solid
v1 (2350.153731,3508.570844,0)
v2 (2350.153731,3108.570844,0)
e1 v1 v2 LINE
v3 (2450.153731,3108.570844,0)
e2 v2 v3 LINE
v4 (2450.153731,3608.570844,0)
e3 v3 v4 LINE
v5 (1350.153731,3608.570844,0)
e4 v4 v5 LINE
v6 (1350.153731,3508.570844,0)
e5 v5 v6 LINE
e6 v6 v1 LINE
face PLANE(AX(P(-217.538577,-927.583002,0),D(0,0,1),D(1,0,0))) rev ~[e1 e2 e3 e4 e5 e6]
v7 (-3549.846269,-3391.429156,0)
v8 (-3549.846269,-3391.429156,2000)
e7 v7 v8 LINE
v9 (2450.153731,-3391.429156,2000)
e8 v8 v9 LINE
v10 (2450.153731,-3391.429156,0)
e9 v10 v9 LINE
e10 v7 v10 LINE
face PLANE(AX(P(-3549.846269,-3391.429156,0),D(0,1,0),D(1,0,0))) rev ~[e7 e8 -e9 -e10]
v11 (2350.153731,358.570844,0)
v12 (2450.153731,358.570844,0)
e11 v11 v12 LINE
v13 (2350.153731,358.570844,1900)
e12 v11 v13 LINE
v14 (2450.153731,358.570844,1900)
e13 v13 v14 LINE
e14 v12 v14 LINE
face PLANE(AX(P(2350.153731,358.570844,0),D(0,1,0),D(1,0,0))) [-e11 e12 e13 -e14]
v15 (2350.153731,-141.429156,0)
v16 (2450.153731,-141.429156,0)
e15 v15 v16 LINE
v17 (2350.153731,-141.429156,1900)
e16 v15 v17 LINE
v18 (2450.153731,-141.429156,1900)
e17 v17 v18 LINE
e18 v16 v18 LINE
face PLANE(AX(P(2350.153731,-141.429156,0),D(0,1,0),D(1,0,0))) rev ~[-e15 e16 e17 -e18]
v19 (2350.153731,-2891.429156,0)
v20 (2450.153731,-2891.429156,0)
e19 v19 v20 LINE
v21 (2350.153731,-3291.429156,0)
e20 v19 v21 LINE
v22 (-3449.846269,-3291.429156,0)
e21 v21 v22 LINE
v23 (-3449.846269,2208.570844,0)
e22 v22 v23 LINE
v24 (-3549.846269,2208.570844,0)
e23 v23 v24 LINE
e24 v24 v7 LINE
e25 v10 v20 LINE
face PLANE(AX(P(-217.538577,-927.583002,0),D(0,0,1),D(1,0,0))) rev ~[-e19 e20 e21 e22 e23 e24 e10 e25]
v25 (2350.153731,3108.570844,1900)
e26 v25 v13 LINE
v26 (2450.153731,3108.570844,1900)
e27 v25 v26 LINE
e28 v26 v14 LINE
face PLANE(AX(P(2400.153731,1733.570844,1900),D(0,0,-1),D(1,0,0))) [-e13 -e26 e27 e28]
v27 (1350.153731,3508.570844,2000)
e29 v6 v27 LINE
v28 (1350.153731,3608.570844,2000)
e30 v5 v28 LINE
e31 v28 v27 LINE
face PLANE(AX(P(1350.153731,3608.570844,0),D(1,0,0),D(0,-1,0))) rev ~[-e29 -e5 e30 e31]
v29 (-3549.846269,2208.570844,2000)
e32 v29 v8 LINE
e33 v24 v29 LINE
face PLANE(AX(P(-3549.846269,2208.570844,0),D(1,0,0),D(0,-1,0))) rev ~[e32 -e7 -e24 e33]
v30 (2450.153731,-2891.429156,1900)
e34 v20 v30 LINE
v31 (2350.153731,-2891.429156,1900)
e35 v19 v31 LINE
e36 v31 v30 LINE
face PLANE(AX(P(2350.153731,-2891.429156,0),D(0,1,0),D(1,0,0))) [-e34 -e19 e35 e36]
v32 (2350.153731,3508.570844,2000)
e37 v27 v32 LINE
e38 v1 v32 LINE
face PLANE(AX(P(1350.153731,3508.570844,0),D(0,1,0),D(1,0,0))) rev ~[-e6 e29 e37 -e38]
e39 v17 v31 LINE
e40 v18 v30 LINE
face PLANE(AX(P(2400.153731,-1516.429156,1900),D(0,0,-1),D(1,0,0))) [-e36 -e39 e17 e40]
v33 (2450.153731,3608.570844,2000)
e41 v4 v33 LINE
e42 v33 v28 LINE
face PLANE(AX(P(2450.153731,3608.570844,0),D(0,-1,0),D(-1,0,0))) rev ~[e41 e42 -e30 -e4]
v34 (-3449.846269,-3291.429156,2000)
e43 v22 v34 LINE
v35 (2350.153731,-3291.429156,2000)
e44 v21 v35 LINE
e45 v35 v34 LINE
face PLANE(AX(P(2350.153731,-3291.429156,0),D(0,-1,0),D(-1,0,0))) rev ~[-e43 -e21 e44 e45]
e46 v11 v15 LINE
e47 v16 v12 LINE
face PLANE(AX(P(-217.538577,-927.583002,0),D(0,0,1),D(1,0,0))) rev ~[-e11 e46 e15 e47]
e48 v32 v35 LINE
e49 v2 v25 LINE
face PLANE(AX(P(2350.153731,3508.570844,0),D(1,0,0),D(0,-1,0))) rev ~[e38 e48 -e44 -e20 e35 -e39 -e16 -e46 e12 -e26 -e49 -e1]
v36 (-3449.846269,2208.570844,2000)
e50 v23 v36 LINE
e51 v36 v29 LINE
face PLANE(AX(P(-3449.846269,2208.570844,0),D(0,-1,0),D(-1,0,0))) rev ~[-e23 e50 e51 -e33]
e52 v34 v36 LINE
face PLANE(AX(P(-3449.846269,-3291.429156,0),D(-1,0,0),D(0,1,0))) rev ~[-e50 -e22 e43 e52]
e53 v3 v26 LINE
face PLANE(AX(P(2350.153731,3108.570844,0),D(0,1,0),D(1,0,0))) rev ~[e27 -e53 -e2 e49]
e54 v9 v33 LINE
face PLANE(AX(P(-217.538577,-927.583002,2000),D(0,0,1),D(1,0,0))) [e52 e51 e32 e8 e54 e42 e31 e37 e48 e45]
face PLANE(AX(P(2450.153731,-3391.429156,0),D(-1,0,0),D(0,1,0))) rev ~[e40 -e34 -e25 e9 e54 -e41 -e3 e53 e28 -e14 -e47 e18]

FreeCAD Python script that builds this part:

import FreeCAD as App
import Part
import Sketcher

V = App.Vector

doc = App.newDocument("Part")
body = doc.addObject("PartDesign::Body", "Body")

# Sketch on XY plane
sketch1 = body.newObject("Sketcher::SketchObject", "Sketch")
sketch1.AttachmentSupport = (doc.getObject("XY_Plane"), [""])
sketch1.MapMode = "FlatFace"
sketch1.addGeometry(Part.LineSegment(V(2450.153731, 3608.570844, 0), V(1350.153731, 3608.570844, 0)), False)
sketch1.addGeometry(Part.LineSegment(V(1350.153731, 3608.570844, 0), V(1350.153731, 3508.570844, 0)), False)
sketch1.addGeometry(Part.LineSegment(V(1350.153731, 3508.570844, 0), V(2350.153731, 3508.570844, 0)), False)
sketch1.addGeometry(Part.LineSegment(V(2350.153731, 3508.570844, 0), V(2350.153731, -3291.429156, 0)), False)
sketch1.addGeometry(Part.LineSegment(V(2350.153731, -3291.429156, 0), V(-3449.846269, -3291.429156, 0)), False)
sketch1.addGeometry(Part.LineSegment(V(-3449.846269, -3291.429156, 0), V(-3449.846269, 2208.570844, 0)), False)
sketch1.addGeometry(Part.LineSegment(V(-3449.846269, 2208.570844, 0), V(-3549.846269, 2208.570844, 0)), False)
sketch1.addGeometry(Part.LineSegment(V(-3549.846269, 2208.570844, 0), V(-3549.846269, -3391.429156, 0)), False)
sketch1.addGeometry(Part.LineSegment(V(-3549.846269, -3391.429156, 0), V(2450.153731, -3391.429156, 0)), False)
sketch1.addGeometry(Part.LineSegment(V(2450.153731, -3391.429156, 0), V(2450.153731, 3608.570844, 0)), False)
sketch1.addConstraint(Sketcher.Constraint("Coincident", 0, 2, 1, 1))
sketch1.addConstraint(Sketcher.Constraint("Coincident", 1, 2, 2, 1))
sketch1.addConstraint(Sketcher.Constraint("Coincident", 2, 2, 3, 1))
sketch1.addConstraint(Sketcher.Constraint("Coincident", 3, 2, 4, 1))
sketch1.addConstraint(Sketcher.Constraint("Coincident", 4, 2, 5, 1))
sketch1.addConstraint(Sketcher.Constraint("Coincident", 5, 2, 6, 1))
sketch1.addConstraint(Sketcher.Constraint("Coincident", 6, 2, 7, 1))
sketch1.addConstraint(Sketcher.Constraint("Coincident", 7, 2, 8, 1))
sketch1.addConstraint(Sketcher.Constraint("Coincident", 8, 2, 9, 1))
sketch1.addConstraint(Sketcher.Constraint("Coincident", 9, 2, 0, 1))
sketch1.addConstraint(Sketcher.Constraint("Horizontal", 0))
sketch1.addConstraint(Sketcher.Constraint("Vertical", 1))
sketch1.addConstraint(Sketcher.Constraint("Horizontal", 2))
sketch1.addConstraint(Sketcher.Constraint("Vertical", 3))
sketch1.addConstraint(Sketcher.Constraint("Horizontal", 4))
sketch1.addConstraint(Sketcher.Constraint("Vertical", 5))
sketch1.addConstraint(Sketcher.Constraint("Horizontal", 6))
sketch1.addConstraint(Sketcher.Constraint("Vertical", 7))
sketch1.addConstraint(Sketcher.Constraint("Horizontal", 8))
sketch1.addConstraint(Sketcher.Constraint("Vertical", 9))
sketch1.addConstraint(Sketcher.Constraint("Equal", 6, 1))
sketch1.addConstraint(Sketcher.Constraint("DistanceX", 0, 2, 0, 1, 1100.0))
sketch1.addConstraint(Sketcher.Constraint("DistanceX", 2, 1, 2, 2, 1000.0))
sketch1.addConstraint(Sketcher.Constraint("DistanceX", 4, 2, 4, 1, 5800.0))
sketch1.addConstraint(Sketcher.Constraint("DistanceX", 6, 2, 6, 1, 100.0))
sketch1.addConstraint(Sketcher.Constraint("DistanceY", 3, 2, 3, 1, 6800.0))
sketch1.addConstraint(Sketcher.Constraint("DistanceY", 5, 1, 5, 2, 5500.0))
sketch1.addConstraint(Sketcher.Constraint("DistanceY", 7, 2, 7, 1, 5600.0))
sketch1.addConstraint(Sketcher.Constraint("DistanceX", -1, 1, 0, 2, 1350.153731))
sketch1.addConstraint(Sketcher.Constraint("DistanceY", -1, 1, 0, 2, 3608.570844))
pad1 = body.newObject("PartDesign::Pad", "Pad")
pad1.Profile = sketch1
pad1.Length = 2000

# Sketch on XY plane
sketch2 = body.newObject("Sketcher::SketchObject", "Sketch001")
sketch2.AttachmentSupport = (doc.getObject("XY_Plane"), [""])
sketch2.MapMode = "FlatFace"
sketch2.addGeometry(Part.LineSegment(V(2350.153731, 358.570844, 0), V(2350.153731, 3108.570844, 0)), False)
sketch2.addGeometry(Part.LineSegment(V(2350.153731, 3108.570844, 0), V(2450.153731, 3108.570844, 0)), False)
sketch2.addGeometry(Part.LineSegment(V(2450.153731, 3108.570844, 0), V(2450.153731, 358.570844, 0)), False)
sketch2.addGeometry(Part.LineSegment(V(2450.153731, 358.570844, 0), V(2350.153731, 358.570844, 0)), False)
sketch2.addGeometry(Part.LineSegment(V(2350.153731, -2891.429156, 0), V(2350.153731, -141.429156, 0)), False)
sketch2.addGeometry(Part.LineSegment(V(2350.153731, -141.429156, 0), V(2450.153731, -141.429156, 0)), False)
sketch2.addGeometry(Part.LineSegment(V(2450.153731, -141.429156, 0), V(2450.153731, -2891.429156, 0)), False)
sketch2.addGeometry(Part.LineSegment(V(2450.153731, -2891.429156, 0), V(2350.153731, -2891.429156, 0)), False)
sketch2.addConstraint(Sketcher.Constraint("Coincident", 0, 2, 1, 1))
sketch2.addConstraint(Sketcher.Constraint("Coincident", 1, 2, 2, 1))
sketch2.addConstraint(Sketcher.Constraint("Coincident", 2, 2, 3, 1))
sketch2.addConstraint(Sketcher.Constraint("Coincident", 3, 2, 0, 1))
sketch2.addConstraint(Sketcher.Constraint("Coincident", 4, 2, 5, 1))
sketch2.addConstraint(Sketcher.Constraint("Coincident", 5, 2, 6, 1))
sketch2.addConstraint(Sketcher.Constraint("Coincident", 6, 2, 7, 1))
sketch2.addConstraint(Sketcher.Constraint("Coincident", 7, 2, 4, 1))
sketch2.addConstraint(Sketcher.Constraint("Vertical", 0))
sketch2.addConstraint(Sketcher.Constraint("Horizontal", 1))
sketch2.addConstraint(Sketcher.Constraint("Vertical", 2))
sketch2.addConstraint(Sketcher.Constraint("Horizontal", 3))
sketch2.addConstraint(Sketcher.Constraint("Vertical", 4))
sketch2.addConstraint(Sketcher.Constraint("Horizontal", 5))
sketch2.addConstraint(Sketcher.Constraint("Vertical", 6))
sketch2.addConstraint(Sketcher.Constraint("Horizontal", 7))
sketch2.addConstraint(Sketcher.Constraint("Vertical", 3, 2, 4, 2))
sketch2.addConstraint(Sketcher.Constraint("Vertical", 2, 2, 5, 2))
sketch2.addConstraint(Sketcher.Constraint("Equal", 2, 4))
sketch2.addConstraint(Sketcher.Constraint("DistanceX", 1, 1, 1, 2, 100.0))
sketch2.addConstraint(Sketcher.Constraint("DistanceY", 0, 1, 0, 2, 2750.0))
sketch2.addConstraint(Sketcher.Constraint("DistanceY", 4, 2, 3, 2, 500.0))
sketch2.addConstraint(Sketcher.Constraint("DistanceX", -1, 1, 0, 2, 2350.153731))
sketch2.addConstraint(Sketcher.Constraint("DistanceY", -1, 1, 0, 2, 3108.570844))
pocket1 = body.newObject("PartDesign::Pocket", "Pocket")
pocket1.Profile = sketch2
pocket1.Length = 1900
pocket1.Reversed = True

doc.recompute()
